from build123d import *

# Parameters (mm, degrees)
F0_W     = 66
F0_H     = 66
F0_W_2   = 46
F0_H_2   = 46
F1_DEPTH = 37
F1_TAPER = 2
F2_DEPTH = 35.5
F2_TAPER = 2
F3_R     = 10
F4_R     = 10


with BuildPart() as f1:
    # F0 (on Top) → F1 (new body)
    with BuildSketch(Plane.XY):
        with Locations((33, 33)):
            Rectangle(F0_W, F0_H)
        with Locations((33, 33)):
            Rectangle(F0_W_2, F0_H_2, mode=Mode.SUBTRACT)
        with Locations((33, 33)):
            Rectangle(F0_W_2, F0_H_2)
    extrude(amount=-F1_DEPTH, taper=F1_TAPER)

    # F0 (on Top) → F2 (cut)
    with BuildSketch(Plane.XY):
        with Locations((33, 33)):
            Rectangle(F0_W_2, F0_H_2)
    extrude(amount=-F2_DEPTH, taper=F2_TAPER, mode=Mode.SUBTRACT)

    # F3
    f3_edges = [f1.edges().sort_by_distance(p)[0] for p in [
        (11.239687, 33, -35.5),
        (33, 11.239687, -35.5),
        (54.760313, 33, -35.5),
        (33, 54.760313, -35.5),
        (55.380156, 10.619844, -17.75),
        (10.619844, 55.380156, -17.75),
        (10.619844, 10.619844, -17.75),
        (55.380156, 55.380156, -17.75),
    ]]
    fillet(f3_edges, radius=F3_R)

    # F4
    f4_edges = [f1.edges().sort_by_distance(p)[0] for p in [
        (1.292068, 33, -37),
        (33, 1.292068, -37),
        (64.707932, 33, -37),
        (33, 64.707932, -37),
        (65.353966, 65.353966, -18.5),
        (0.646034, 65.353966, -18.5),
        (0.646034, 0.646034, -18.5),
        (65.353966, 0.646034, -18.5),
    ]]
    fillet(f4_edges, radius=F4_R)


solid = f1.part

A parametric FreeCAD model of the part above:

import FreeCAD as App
import Part
import Sketcher
from FreeCAD import Vector


def edges_at(feature, points):
    """Names of the edges that pass closest to the given points."""
    edges = feature.Shape.Edges
    near = lambda p: min(range(len(edges)), key=lambda i: edges[i].distToShape(Part.Vertex(*p))[0])
    return sorted({f"Edge{near(p) + 1}" for p in points})

doc = App.newDocument("Part")
body = doc.addObject("PartDesign::Body", "Body")

# Sketch on XY plane
sketch1 = body.newObject("Sketcher::SketchObject", "Sketch")
sketch1.AttachmentSupport = (doc.getObject("XY_Plane"), [""])
sketch1.MapMode = "FlatFace"
sketch1.addGeometry([
    Part.LineSegment(Vector(0, 66, 0), Vector(0, 0, 0)),
    Part.LineSegment(Vector(0, 0, 0), Vector(66, 0, 0)),
    Part.LineSegment(Vector(66, 0, 0), Vector(66, 66, 0)),
    Part.LineSegment(Vector(66, 66, 0), Vector(0, 66, 0)),
], False)
sketch1.addConstraint([
    Sketcher.Constraint("Coincident", 0, 2, 1, 1),
    Sketcher.Constraint("Coincident", 1, 2, 2, 1),
    Sketcher.Constraint("Coincident", 2, 2, 3, 1),
    Sketcher.Constraint("Coincident", 3, 2, 0, 1),
    Sketcher.Constraint("Vertical", 0),
    Sketcher.Constraint("Horizontal", 1),
    Sketcher.Constraint("Vertical", 2),
    Sketcher.Constraint("Horizontal", 3),
    Sketcher.Constraint("Coincident", 0, 2, -1, 1),
    Sketcher.Constraint("Equal", 3, 0),
    Sketcher.Constraint("DistanceX", 1, 1, 1, 2, 66.0),
])
pad1 = body.newObject("PartDesign::Pad", "Pad")
pad1.Profile = sketch1
pad1.Length = 37
pad1.Reversed = True
pad1.TaperAngle = -2

# Sketch on XY plane
sketch2 = body.newObject("Sketcher::SketchObject", "Sketch001")
sketch2.AttachmentSupport = (doc.getObject("XY_Plane"), [""])
sketch2.MapMode = "FlatFace"
sketch2.addGeometry([
    Part.LineSegment(Vector(10, 56, 0), Vector(10, 10, 0)),
    Part.LineSegment(Vector(10, 10, 0), Vector(56, 10, 0)),
    Part.LineSegment(Vector(56, 10, 0), Vector(56, 56, 0)),
    Part.LineSegment(Vector(56, 56, 0), Vector(10, 56, 0)),
], False)
sketch2.addConstraint([
    Sketcher.Constraint("Coincident", 0, 2, 1, 1),
    Sketcher.Constraint("Coincident", 1, 2, 2, 1),
    Sketcher.Constraint("Coincident", 2, 2, 3, 1),
    Sketcher.Constraint("Coincident", 3, 2, 0, 1),
    Sketcher.Constraint("Vertical", 0),
    Sketcher.Constraint("Horizontal", 1),
    Sketcher.Constraint("Vertical", 2),
    Sketcher.Constraint("Horizontal", 3),
    Sketcher.Constraint("Equal", 3, 0),
    Sketcher.Constraint("DistanceX", 1, 1, 1, 2, 46.0),
    Sketcher.Constraint("DistanceX", -1, 1, 0, 2, 10.0),
    Sketcher.Constraint("DistanceY", -1, 1, 0, 2, 10.0),
])
pocket1 = body.newObject("PartDesign::Pocket", "Pocket")
pocket1.Profile = sketch2
pocket1.Length = 35.5
pocket1.TaperAngle = -2
doc.recompute()

fillet = body.newObject("PartDesign::Fillet", "Fillet")
fillet.Base = (pocket1, edges_at(pocket1, [
    (11.24, 33, -35.5),
    (33, 11.24, -35.5),
    (54.76, 33, -35.5),
    (33, 54.76, -35.5),
    (55.38, 10.62, -17.75),
    (10.62, 55.38, -17.75),
    (10.62, 10.62, -17.75),
    (55.38, 55.38, -17.75),
]))
fillet.Radius = 10
doc.recompute()

fillet2 = body.newObject("PartDesign::Fillet", "Fillet001")
fillet2.Base = (fillet, edges_at(fillet, [
    (1.292, 33, -37),
    (33, 1.292, -37),
    (64.708, 33, -37),
    (33, 64.708, -37),
    (65.354, 65.354, -18.5),
    (0.646, 65.354, -18.5),
    (0.646, 0.646, -18.5),
    (65.354, 0.646, -18.5),
]))
fillet2.Radius = 10

doc.recompute()
